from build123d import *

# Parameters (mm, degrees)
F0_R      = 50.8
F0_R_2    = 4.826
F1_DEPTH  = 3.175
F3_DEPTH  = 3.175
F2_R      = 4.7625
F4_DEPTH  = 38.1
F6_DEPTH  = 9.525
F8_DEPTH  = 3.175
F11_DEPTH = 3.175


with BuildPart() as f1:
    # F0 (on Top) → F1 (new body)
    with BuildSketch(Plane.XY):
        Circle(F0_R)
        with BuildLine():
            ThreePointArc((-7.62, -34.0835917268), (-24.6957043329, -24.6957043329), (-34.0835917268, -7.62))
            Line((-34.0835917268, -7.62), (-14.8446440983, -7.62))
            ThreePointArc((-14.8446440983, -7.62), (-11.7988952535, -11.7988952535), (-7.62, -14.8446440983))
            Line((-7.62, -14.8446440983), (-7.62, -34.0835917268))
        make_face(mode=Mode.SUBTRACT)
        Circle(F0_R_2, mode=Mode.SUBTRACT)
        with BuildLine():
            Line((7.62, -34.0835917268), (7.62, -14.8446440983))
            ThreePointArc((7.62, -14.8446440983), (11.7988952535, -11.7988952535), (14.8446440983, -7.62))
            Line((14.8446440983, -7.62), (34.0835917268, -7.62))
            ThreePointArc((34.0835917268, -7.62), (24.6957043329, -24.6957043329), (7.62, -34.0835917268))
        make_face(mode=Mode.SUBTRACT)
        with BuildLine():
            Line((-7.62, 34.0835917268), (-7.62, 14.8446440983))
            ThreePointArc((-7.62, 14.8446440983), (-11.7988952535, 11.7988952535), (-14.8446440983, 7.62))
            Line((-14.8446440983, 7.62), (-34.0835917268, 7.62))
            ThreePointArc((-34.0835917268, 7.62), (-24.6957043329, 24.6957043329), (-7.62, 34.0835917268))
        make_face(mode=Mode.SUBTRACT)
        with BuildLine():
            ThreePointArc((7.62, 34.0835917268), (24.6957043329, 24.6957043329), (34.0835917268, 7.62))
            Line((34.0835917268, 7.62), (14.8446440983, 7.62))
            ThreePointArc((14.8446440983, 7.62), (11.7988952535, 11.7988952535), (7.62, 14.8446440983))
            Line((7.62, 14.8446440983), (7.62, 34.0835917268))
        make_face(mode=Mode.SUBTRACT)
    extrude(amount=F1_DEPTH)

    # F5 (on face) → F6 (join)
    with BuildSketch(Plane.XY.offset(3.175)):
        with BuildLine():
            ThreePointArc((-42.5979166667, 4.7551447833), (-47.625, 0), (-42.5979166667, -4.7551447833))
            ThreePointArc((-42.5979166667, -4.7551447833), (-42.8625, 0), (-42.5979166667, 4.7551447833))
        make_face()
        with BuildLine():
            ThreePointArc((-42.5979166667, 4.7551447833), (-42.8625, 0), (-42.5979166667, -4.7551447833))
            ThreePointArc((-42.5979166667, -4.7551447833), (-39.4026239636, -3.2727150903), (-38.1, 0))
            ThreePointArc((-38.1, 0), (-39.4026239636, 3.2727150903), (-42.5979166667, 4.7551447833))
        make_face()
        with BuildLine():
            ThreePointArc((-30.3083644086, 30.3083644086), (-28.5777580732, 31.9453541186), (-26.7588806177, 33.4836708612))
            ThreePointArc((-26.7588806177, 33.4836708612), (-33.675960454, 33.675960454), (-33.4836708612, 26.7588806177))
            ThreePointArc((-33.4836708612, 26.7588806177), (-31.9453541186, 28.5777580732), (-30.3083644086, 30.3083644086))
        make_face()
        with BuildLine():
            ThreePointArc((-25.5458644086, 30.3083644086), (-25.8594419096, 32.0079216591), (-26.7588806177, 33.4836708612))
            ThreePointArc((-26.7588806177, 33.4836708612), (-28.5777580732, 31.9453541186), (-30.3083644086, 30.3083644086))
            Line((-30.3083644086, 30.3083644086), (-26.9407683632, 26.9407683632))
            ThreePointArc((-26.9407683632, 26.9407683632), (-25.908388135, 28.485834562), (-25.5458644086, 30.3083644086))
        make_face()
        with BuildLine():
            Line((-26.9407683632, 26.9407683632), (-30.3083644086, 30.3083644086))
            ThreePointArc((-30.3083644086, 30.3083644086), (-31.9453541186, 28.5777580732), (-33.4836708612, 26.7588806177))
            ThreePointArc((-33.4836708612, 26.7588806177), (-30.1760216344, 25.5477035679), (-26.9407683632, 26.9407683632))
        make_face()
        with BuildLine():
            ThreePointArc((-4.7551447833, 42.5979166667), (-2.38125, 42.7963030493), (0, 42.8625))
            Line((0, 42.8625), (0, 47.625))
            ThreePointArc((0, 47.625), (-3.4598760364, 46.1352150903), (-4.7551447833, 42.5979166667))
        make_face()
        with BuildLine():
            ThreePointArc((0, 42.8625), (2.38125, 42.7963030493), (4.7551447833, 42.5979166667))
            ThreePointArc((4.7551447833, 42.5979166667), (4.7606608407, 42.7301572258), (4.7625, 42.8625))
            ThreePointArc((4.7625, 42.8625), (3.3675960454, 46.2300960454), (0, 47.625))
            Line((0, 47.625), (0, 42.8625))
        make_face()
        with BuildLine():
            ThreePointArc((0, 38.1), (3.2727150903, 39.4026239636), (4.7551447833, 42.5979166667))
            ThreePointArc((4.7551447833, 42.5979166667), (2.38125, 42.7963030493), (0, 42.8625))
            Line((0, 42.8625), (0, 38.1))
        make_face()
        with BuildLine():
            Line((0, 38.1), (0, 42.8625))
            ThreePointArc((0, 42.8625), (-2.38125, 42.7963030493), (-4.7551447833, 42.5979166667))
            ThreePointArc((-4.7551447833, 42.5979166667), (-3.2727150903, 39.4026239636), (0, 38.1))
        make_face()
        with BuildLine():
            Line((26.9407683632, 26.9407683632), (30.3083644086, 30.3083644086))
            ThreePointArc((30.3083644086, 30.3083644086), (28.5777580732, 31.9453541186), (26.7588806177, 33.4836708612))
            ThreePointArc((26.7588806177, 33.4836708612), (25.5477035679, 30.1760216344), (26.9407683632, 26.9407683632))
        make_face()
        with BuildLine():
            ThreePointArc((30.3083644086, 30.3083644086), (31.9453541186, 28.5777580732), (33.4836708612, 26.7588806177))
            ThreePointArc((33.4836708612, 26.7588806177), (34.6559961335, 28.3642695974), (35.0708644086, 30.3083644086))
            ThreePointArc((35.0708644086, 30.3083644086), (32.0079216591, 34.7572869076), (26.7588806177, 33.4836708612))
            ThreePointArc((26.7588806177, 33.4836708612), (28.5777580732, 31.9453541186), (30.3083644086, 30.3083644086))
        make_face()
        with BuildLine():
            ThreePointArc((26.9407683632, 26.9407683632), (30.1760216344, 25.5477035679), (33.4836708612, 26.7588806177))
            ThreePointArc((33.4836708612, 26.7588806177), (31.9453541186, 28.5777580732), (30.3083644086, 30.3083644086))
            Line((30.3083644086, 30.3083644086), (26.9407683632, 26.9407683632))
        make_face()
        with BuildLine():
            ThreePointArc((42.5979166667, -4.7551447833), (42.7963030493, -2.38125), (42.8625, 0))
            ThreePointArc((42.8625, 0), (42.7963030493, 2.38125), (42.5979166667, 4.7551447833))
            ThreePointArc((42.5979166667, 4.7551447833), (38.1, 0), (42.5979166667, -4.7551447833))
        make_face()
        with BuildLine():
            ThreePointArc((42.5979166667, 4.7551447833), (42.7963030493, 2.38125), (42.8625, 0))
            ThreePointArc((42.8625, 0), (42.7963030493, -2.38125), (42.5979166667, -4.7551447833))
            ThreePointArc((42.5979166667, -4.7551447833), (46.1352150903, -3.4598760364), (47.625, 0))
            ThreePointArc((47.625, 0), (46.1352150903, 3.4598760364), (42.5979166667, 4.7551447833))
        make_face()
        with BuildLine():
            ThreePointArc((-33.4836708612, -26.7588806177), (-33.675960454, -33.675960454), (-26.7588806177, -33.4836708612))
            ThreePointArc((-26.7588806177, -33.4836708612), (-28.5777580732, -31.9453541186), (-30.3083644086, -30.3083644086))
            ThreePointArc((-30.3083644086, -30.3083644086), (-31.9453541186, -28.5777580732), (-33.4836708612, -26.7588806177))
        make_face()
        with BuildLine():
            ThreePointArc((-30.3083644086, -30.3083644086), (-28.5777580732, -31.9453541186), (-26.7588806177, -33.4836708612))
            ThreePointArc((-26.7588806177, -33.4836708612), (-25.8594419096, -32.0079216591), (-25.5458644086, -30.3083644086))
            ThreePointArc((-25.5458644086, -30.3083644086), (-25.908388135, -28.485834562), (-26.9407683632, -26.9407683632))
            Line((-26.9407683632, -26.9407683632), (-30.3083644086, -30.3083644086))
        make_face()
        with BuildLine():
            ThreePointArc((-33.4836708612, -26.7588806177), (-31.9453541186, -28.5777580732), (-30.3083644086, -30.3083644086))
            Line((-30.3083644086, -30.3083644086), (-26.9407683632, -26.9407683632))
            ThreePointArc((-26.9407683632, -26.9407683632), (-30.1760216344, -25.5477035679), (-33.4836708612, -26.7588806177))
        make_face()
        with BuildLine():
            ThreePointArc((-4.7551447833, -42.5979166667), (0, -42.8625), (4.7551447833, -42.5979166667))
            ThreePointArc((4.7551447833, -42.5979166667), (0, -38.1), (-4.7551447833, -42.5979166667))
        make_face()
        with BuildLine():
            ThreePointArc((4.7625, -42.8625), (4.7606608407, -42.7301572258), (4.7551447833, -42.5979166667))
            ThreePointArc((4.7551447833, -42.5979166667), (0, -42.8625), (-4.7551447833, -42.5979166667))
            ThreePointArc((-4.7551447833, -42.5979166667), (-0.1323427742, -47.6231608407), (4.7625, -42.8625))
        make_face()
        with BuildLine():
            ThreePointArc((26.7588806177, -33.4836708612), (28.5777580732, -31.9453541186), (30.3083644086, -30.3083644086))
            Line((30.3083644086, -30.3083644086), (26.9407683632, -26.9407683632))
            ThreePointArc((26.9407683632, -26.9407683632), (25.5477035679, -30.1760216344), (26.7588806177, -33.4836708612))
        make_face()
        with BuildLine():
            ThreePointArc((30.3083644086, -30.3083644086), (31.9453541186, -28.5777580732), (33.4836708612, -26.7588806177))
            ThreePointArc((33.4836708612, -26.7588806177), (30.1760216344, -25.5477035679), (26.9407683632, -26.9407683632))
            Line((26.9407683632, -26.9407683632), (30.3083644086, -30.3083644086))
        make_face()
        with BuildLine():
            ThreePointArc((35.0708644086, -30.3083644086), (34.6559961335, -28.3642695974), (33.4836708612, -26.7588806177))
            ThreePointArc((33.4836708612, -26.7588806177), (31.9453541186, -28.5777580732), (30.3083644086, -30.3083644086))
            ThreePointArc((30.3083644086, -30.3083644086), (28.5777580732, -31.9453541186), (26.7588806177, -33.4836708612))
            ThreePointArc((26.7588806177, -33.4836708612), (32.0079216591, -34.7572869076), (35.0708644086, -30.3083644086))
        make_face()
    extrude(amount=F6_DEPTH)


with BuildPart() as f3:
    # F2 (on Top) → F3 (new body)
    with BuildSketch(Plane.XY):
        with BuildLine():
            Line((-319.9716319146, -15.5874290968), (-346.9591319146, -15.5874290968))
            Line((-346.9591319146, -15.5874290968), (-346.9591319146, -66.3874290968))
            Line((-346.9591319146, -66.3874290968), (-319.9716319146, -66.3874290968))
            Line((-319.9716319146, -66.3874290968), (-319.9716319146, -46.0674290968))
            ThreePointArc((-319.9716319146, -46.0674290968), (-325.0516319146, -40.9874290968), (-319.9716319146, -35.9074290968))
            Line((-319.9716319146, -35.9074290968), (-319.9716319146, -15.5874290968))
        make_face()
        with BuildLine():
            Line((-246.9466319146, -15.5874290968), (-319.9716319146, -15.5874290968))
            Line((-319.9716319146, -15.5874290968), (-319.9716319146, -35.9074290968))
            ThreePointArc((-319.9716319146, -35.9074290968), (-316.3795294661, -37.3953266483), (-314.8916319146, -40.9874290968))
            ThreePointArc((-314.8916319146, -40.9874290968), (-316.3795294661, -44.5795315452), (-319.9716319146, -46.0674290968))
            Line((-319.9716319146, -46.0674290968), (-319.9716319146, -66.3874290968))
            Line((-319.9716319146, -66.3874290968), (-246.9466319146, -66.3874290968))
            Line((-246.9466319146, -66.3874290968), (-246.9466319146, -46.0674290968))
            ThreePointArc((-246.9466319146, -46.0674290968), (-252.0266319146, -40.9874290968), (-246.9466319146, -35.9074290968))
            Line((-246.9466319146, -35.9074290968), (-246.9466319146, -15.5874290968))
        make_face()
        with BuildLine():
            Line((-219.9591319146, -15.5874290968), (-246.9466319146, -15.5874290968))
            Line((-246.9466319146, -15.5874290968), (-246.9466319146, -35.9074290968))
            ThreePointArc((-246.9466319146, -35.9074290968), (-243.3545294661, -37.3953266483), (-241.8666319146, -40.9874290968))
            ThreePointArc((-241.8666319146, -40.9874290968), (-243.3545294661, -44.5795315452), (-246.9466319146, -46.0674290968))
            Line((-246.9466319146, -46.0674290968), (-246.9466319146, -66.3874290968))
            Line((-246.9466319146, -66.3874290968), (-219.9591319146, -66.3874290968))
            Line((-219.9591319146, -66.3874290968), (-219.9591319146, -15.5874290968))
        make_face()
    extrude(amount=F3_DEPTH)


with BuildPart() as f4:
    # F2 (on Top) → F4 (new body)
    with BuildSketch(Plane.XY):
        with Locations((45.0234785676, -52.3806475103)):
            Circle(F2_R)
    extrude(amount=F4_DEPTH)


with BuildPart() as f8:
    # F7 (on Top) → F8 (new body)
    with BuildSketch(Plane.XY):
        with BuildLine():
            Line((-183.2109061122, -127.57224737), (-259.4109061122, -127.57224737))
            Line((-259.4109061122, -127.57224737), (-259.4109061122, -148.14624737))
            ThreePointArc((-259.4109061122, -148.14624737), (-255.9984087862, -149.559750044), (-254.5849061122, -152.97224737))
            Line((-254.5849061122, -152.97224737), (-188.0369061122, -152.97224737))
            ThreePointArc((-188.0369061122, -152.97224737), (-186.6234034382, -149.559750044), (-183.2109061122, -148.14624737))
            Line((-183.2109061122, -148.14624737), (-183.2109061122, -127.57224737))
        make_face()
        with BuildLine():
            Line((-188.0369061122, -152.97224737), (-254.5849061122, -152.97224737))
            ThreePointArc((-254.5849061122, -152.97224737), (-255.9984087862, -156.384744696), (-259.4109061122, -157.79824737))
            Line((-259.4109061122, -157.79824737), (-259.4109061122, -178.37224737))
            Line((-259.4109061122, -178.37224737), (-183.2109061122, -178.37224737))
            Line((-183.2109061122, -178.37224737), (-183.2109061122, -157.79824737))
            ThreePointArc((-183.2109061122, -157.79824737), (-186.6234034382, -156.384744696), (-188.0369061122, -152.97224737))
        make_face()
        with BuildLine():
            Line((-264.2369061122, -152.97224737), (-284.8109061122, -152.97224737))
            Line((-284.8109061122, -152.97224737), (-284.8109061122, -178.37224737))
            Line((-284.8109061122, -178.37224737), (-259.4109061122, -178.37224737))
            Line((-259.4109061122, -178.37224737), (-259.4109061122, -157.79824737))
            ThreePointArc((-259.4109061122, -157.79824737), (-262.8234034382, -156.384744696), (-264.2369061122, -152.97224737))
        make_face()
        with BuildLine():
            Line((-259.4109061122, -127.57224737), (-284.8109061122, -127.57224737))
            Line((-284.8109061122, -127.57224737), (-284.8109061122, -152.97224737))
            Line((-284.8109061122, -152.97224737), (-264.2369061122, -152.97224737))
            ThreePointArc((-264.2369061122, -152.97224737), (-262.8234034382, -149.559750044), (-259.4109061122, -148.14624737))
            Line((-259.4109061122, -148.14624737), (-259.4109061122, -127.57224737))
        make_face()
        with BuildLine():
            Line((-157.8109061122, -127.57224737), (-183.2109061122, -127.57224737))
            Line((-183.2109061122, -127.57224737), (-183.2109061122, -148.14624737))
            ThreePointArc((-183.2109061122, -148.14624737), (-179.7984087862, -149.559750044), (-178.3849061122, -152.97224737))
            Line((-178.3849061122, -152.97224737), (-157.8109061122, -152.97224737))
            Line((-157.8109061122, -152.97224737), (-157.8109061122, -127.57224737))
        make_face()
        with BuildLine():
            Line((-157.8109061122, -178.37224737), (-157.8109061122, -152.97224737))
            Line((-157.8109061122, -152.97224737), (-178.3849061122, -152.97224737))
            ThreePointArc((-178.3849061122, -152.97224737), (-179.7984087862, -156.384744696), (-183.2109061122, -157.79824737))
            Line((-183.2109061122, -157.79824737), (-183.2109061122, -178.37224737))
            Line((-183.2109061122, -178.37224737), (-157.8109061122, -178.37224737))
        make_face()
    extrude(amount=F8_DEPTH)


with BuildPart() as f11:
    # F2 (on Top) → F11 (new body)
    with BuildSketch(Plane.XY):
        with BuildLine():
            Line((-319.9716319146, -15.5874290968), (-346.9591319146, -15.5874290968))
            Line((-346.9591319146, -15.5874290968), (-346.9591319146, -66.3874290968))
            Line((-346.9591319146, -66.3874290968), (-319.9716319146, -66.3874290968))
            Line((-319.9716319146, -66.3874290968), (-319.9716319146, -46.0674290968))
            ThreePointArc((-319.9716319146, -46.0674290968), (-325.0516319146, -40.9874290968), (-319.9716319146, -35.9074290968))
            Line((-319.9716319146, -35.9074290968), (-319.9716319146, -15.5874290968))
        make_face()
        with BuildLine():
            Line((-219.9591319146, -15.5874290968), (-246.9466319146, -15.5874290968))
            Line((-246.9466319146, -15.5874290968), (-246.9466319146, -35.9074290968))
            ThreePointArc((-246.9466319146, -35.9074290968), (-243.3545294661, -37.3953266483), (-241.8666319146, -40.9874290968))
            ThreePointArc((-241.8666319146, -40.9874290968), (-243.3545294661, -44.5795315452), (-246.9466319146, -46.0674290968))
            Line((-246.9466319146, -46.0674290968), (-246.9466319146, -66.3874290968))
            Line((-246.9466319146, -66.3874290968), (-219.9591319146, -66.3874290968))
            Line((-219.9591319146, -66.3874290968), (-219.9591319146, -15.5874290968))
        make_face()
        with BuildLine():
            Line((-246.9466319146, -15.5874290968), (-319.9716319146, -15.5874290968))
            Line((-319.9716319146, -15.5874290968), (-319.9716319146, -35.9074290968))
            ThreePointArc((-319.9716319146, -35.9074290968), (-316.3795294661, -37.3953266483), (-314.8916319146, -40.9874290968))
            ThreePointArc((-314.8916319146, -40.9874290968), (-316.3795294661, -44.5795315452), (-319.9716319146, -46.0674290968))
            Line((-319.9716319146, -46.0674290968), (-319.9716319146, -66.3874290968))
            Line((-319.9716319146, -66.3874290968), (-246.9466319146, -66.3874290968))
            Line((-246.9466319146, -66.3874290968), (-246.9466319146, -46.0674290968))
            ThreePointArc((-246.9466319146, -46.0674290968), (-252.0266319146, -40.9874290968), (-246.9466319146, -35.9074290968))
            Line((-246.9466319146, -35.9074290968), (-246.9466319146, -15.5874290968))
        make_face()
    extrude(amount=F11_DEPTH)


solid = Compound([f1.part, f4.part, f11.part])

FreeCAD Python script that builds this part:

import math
import FreeCAD as App
import Part
import Sketcher

V = App.Vector
Q = App.Units.Quantity

doc = App.newDocument("Part")
body = doc.addObject("PartDesign::Body", "Body")

sketch1 = body.newObject("Sketcher::SketchObject", "Sketch")
sketch1.AttachmentSupport = (doc.getObject("XY_Plane"), [""])
sketch1.MapMode = "FlatFace"
sketch1.addGeometry([
    Part.Circle(V(0, 0, 0), V(0, 0, 1), 50.8),
    Part.LineSegment(V(-7.6, -14.8, 0), V(-7.6, -34.1, 0)),
    Part.ArcOfCircle(Part.Circle(V(0, 0, 0), V(0, 0, 1), 34.9), math.radians(-167), math.radians(-103)),
    Part.LineSegment(V(-34.1, -7.6, 0), V(-14.8, -7.6, 0)),
    Part.ArcOfCircle(Part.Circle(V(0, 0, 0), V(0, 0, 1), 16.7), math.radians(-153), math.radians(-117)),
    Part.ArcOfCircle(Part.Circle(V(0, 0, 0), V(0, 0, 1), 34.9), math.radians(-77), math.radians(-13)),
    Part.LineSegment(V(7.6, -34.1, 0), V(7.6, -14.8, 0)),
    Part.ArcOfCircle(Part.Circle(V(0, 0, 0), V(0, 0, 1), 16.7), math.radians(-63), math.radians(-27)),
    Part.LineSegment(V(14.8, -7.6, 0), V(34.1, -7.6, 0)),
    Part.Circle(V(0, 0, 0), V(0, 0, 1), 4.8),
    Part.ArcOfCircle(Part.Circle(V(0, 0, 0), V(0, 0, 1), 34.9), math.radians(103), math.radians(167)),
    Part.LineSegment(V(-7.6, 34.1, 0), V(-7.6, 14.8, 0)),
    Part.ArcOfCircle(Part.Circle(V(0, 0, 0), V(0, 0, 1), 16.7), math.radians(117), math.radians(153)),
    Part.LineSegment(V(-14.8, 7.6, 0), V(-34.1, 7.6, 0)),
    Part.LineSegment(V(7.6, 14.8, 0), V(7.6, 34.1, 0)),
    Part.ArcOfCircle(Part.Circle(V(0, 0, 0), V(0, 0, 1), 34.9), math.radians(13), math.radians(77)),
    Part.LineSegment(V(34.1, 7.6, 0), V(14.8, 7.6, 0)),
    Part.ArcOfCircle(Part.Circle(V(0, 0, 0), V(0, 0, 1), 16.7), math.radians(27), math.radians(63)),
], False)
sketch1.addConstraint([
    Sketcher.Constraint("Coincident", 1, 2, 2, 2),
    Sketcher.Constraint("Coincident", 2, 1, 3, 1),
    Sketcher.Constraint("Coincident", 3, 2, 4, 1),
    Sketcher.Constraint("Coincident", 4, 2, 1, 1),
    Sketcher.Constraint("Coincident", 5, 1, 6, 1),
    Sketcher.Constraint("Coincident", 6, 2, 7, 1),
    Sketcher.Constraint("Coincident", 7, 2, 8, 1),
    Sketcher.Constraint("Coincident", 8, 2, 5, 2),
    Sketcher.Constraint("Coincident", 10, 1, 11, 1),
    Sketcher.Constraint("Coincident", 11, 2, 12, 1),
    Sketcher.Constraint("Coincident", 12, 2, 13, 1),
    Sketcher.Constraint("Coincident", 13, 2, 10, 2),
    Sketcher.Constraint("Coincident", 14, 2, 15, 2),
    Sketcher.Constraint("Coincident", 15, 1, 16, 1),
    Sketcher.Constraint("Coincident", 16, 2, 17, 1),
    Sketcher.Constraint("Coincident", 17, 2, 14, 1),
    Sketcher.Constraint("Vertical", 1),
    Sketcher.Constraint("Horizontal", 3),
    Sketcher.Constraint("Vertical", 6),
    Sketcher.Constraint("Horizontal", 8),
    Sketcher.Constraint("Vertical", 11),
    Sketcher.Constraint("Horizontal", 13),
    Sketcher.Constraint("Vertical", 14),
    Sketcher.Constraint("Horizontal", 16),
    Sketcher.Constraint("Coincident", 0, 3, -1, 1),
    Sketcher.Constraint("Coincident", 2, 3, -1, 1),
    Sketcher.Constraint("Coincident", 4, 3, -1, 1),
    Sketcher.Constraint("Coincident", 5, 3, -1, 1),
    Sketcher.Constraint("Coincident", 7, 3, -1, 1),
    Sketcher.Constraint("Coincident", 9, 3, -1, 1),
    Sketcher.Constraint("Coincident", 10, 3, -1, 1),
    Sketcher.Constraint("Coincident", 12, 3, -1, 1),
    Sketcher.Constraint("Coincident", 15, 3, -1, 1),
    Sketcher.Constraint("Coincident", 17, 3, -1, 1),
    Sketcher.Constraint("Equal", 2, 5),
    Sketcher.Constraint("Equal", 4, 7),
    Sketcher.Constraint("Equal", 5, 10),
    Sketcher.Constraint("Equal", 7, 12),
    Sketcher.Constraint("Equal", 10, 15),
    Sketcher.Constraint("Equal", 12, 17),
    Sketcher.Constraint("Horizontal", 1, 2, 5, 1),
    Sketcher.Constraint("Horizontal", 3, 2, 7, 2),
    Sketcher.Constraint("Horizontal", 10, 1, 14, 2),
    Sketcher.Constraint("Horizontal", 13, 2, 15, 1),
    Sketcher.Constraint("Vertical", 4, 2, 10, 1),
    Sketcher.Constraint("Vertical", 3, 2, 12, 2),
    Sketcher.Constraint("Equal", 16, 1),
    Sketcher.Constraint("Diameter", 0, Q("4 in")),
    Sketcher.Constraint("Diameter", 9, Q("0.38 in")),
    Sketcher.Constraint("Radius", 2, Q("1.375 in")),
    Sketcher.Constraint("DistanceX", 1, 2, -1, 1, Q("0.3 in")),
    Sketcher.Constraint("Radius", 4, 16.686158),
])
pad1 = body.newObject("PartDesign::Pad", "Pad")
pad1.Profile = sketch1
pad1.Length = Q("0.125 in")

sketch2 = body.newObject("Sketcher::SketchObject", "Sketch001")
sketch2.AttachmentSupport = (doc.getObject("XY_Plane"), [""])
sketch2.MapMode = "FlatFace"
sketch2.AttachmentOffset = App.Placement(V(0, 0, 0.125 * 25.4), App.Rotation())
sketch2.addGeometry([
    Part.ArcOfCircle(Part.Circle(V(-42.86, 0, 0), V(0, 0, 1), 4.76), math.radians(87), math.radians(273)),
    Part.ArcOfCircle(Part.Circle(V(-42.86, 0, 0), V(0, 0, 1), 4.76), math.radians(-87), math.radians(0)),
    Part.ArcOfCircle(Part.Circle(V(-42.86, 0, 0), V(0, 0, 1), 4.76), math.radians(0), math.radians(87)),
    Part.ArcOfCircle(Part.Circle(V(-30.31, 30.31, 0), V(0, 0, 1), 4.76), math.radians(42), math.radians(228)),
    Part.ArcOfCircle(Part.Circle(V(-30.31, 30.31, 0), V(0, 0, 1), 4.76), math.radians(-132), math.radians(-45)),
    Part.ArcOfCircle(Part.Circle(V(-30.31, 30.31, 0), V(0, 0, 1), 4.76), math.radians(-45), math.radians(0)),
    Part.ArcOfCircle(Part.Circle(V(-30.31, 30.31, 0), V(0, 0, 1), 4.76), math.radians(0), math.radians(42)),
    Part.ArcOfCircle(Part.Circle(V(0, 42.86, 0), V(0, 0, 1), 4.76), math.radians(-90), math.radians(-3)),
    Part.ArcOfCircle(Part.Circle(V(0, 42.86, 0), V(0, 0, 1), 4.76), math.radians(-3.18), math.radians(0)),
    Part.ArcOfCircle(Part.Circle(V(0, 42.86, 0), V(0, 0, 1), 4.76), math.radians(0), math.radians(90)),
    Part.ArcOfCircle(Part.Circle(V(0, 42.86, 0), V(0, 0, 1), 4.76), math.radians(90), math.radians(183)),
    Part.ArcOfCircle(Part.Circle(V(0, 42.86, 0), V(0, 0, 1), 4.76), math.radians(-177), math.radians(-90)),
    Part.ArcOfCircle(Part.Circle(V(30.31, 30.31, 0), V(0, 0, 1), 4.76), math.radians(-48), math.radians(0)),
    Part.ArcOfCircle(Part.Circle(V(30.31, 30.31, 0), V(0, 0, 1), 4.76), math.radians(0), math.radians(138)),
    Part.ArcOfCircle(Part.Circle(V(30.31, 30.31, 0), V(0, 0, 1), 4.76), math.radians(138), math.radians(225)),
    Part.ArcOfCircle(Part.Circle(V(30.31, 30.31, 0), V(0, 0, 1), 4.76), math.radians(-135), math.radians(-48)),
    Part.ArcOfCircle(Part.Circle(V(42.86, 0, 0), V(0, 0, 1), 4.76), math.radians(93), math.radians(267)),
    Part.ArcOfCircle(Part.Circle(V(42.86, 0, 0), V(0, 0, 1), 4.76), math.radians(-93), math.radians(0)),
    Part.ArcOfCircle(Part.Circle(V(42.86, 0, 0), V(0, 0, 1), 4.76), math.radians(0), math.radians(93)),
    Part.ArcOfCircle(Part.Circle(V(-30.31, -30.31, 0), V(0, 0, 1), 4.76), math.radians(132), math.radians(318)),
    Part.ArcOfCircle(Part.Circle(V(-30.31, -30.31, 0), V(0, 0, 1), 4.76), math.radians(-42), math.radians(0)),
    Part.ArcOfCircle(Part.Circle(V(-30.31, -30.31, 0), V(0, 0, 1), 4.76), math.radians(0), math.radians(45)),
    Part.ArcOfCircle(Part.Circle(V(-30.31, -30.31, 0), V(0, 0, 1), 4.76), math.radians(45), math.radians(132)),
    Part.ArcOfCircle(Part.Circle(V(0, -42.86, 0), V(0, 0, 1), 4.76), math.radians(3), math.radians(177)),
    Part.ArcOfCircle(Part.Circle(V(0, -42.86, 0), V(0, 0, 1), 4.76), math.radians(177), math.radians(360)),
    Part.ArcOfCircle(Part.Circle(V(0, -42.86, 0), V(0, 0, 1), 4.76), math.radians(0), math.radians(3.18)),
    Part.ArcOfCircle(Part.Circle(V(30.31, -30.31, 0), V(0, 0, 1), 4.76), math.radians(48), math.radians(135)),
    Part.ArcOfCircle(Part.Circle(V(30.31, -30.31, 0), V(0, 0, 1), 4.76), math.radians(135), math.radians(222)),
    Part.ArcOfCircle(Part.Circle(V(30.31, -30.31, 0), V(0, 0, 1), 4.76), math.radians(-138), math.radians(0)),
    Part.ArcOfCircle(Part.Circle(V(30.31, -30.31, 0), V(0, 0, 1), 4.76), math.radians(0), math.radians(48)),
], False)
sketch2.addConstraint([
    Sketcher.Constraint("Tangent", 0, 2, 1, 1),
    Sketcher.Constraint("Tangent", 1, 2, 2, 1),
    Sketcher.Constraint("Tangent", 2, 2, 0, 1),
    Sketcher.Constraint("Tangent", 3, 2, 4, 1),
    Sketcher.Constraint("Tangent", 4, 2, 5, 1),
    Sketcher.Constraint("Tangent", 5, 2, 6, 1),
    Sketcher.Constraint("Tangent", 6, 2, 3, 1),
    Sketcher.Constraint("Tangent", 7, 2, 8, 1),
    Sketcher.Constraint("Tangent", 8, 2, 9, 1),
    Sketcher.Constraint("Tangent", 9, 2, 10, 1),
    Sketcher.Constraint("Tangent", 10, 2, 11, 1),
    Sketcher.Constraint("Tangent", 11, 2, 7, 1),
    Sketcher.Constraint("Tangent", 12, 2, 13, 1),
    Sketcher.Constraint("Tangent", 13, 2, 14, 1),
    Sketcher.Constraint("Tangent", 14, 2, 15, 1),
    Sketcher.Constraint("Tangent", 15, 2, 12, 1),
    Sketcher.Constraint("Tangent", 16, 2, 17, 1),
    Sketcher.Constraint("Tangent", 17, 2, 18, 1),
    Sketcher.Constraint("Tangent", 18, 2, 16, 1),
    Sketcher.Constraint("Tangent", 19, 2, 20, 1),
    Sketcher.Constraint("Tangent", 20, 2, 21, 1),
    Sketcher.Constraint("Tangent", 21, 2, 22, 1),
    Sketcher.Constraint("Tangent", 22, 2, 19, 1),
    Sketcher.Constraint("Tangent", 23, 2, 24, 1),
    Sketcher.Constraint("Tangent", 24, 2, 25, 1),
    Sketcher.Constraint("Tangent", 25, 2, 23, 1),
    Sketcher.Constraint("Tangent", 26, 2, 27, 1),
    Sketcher.Constraint("Tangent", 27, 2, 28, 1),
    Sketcher.Constraint("Tangent", 28, 2, 29, 1),
    Sketcher.Constraint("Tangent", 29, 2, 26, 1),
    Sketcher.Constraint("Coincident", 9, 3, 7, 3),
    Sketcher.Constraint("Equal", 2, 3),
    Sketcher.Constraint("Equal", 3, 4),
    Sketcher.Constraint("Equal", 6, 7),
    Sketcher.Constraint("Equal", 11, 12),
    Sketcher.Constraint("Equal", 12, 13),
    Sketcher.Constraint("Equal", 15, 16),
    Sketcher.Constraint("Equal", 18, 19),
    Sketcher.Constraint("Equal", 19, 20),
    Sketcher.Constraint("Equal", 22, 23),
    Sketcher.Constraint("Equal", 25, 26),
    Sketcher.Constraint("Equal", 26, 27),
    Sketcher.Constraint("Symmetric", 0, 3, 16, 3, -1, 1),
    Sketcher.Constraint("Symmetric", 12, 3, 19, 3, -1, 1),
    Sketcher.Constraint("Symmetric", 7, 3, 23, 3, -1, 1),
    Sketcher.Constraint("Symmetric", 3, 3, 26, 3, -1, 1),
    Sketcher.Constraint("Symmetric", 3, 3, 12, 3, -2),
    Sketcher.Constraint("Symmetric", 7, 2, 10, 2, -2),
    Sketcher.Constraint("Symmetric", 0, 2, 16, 2, -2),
    Sketcher.Constraint("PointOnObject", 1, 2, -1),
    Sketcher.Constraint("PointOnObject", 9, 2, -2),
    Sketcher.Constraint("PointOnObject", 11, 2, -2),
    Sketcher.Constraint("PointOnObject", 17, 2, -1),
    Sketcher.Constraint("Horizontal", 15, 3, 5, 2),
    Sketcher.Constraint("Horizontal", 11, 3, 8, 2),
    Sketcher.Constraint("Horizontal", 5, 2, 12, 2),
    Sketcher.Constraint("Horizontal", 6, 2, 13, 2),
    Sketcher.Constraint("Horizontal", 4, 2, 14, 2),
    Sketcher.Constraint("Horizontal", 3, 2, 15, 2),
    Sketcher.Constraint("Horizontal", 2, 2, 18, 2),
    Sketcher.Constraint("Horizontal", 29, 3, 20, 2),
    Sketcher.Constraint("Horizontal", 25, 3, 24, 2),
    Sketcher.Constraint("Horizontal", 23, 2, 25, 2),
    Sketcher.Constraint("Horizontal", 21, 2, 26, 2),
    Sketcher.Constraint("Horizontal", 19, 2, 27, 2),
    Sketcher.Constraint("Horizontal", 20, 2, 28, 2),
    Sketcher.Constraint("Horizontal", 22, 2, 29, 2),
    Sketcher.Constraint("Vertical", 0, 2, 2, 2),
    Sketcher.Constraint("Vertical", 6, 2, 19, 2),
    Sketcher.Constraint("Vertical", 4, 2, 21, 2),
    Sketcher.Constraint("Vertical", 3, 2, 22, 2),
    Sketcher.Constraint("Vertical", 10, 2, 23, 2),
    Sketcher.Constraint("Radius", 0, Q("0.1875 in")),
    Sketcher.Constraint("DistanceX", 1, 2, -1, 1, Q("1.5 in")),
    Sketcher.Constraint("DistanceY", -1, 1, 11, 2, Q("1.5 in")),
    Sketcher.Constraint("DistanceX", 3, 2, -1, 1, 33.483671),
    Sketcher.Constraint("DistanceY", -1, 1, 3, 2, 26.758881),
    Sketcher.Constraint("DistanceX", 4, 2, -1, 1, 26.940768),
    Sketcher.Constraint("DistanceY", -1, 1, 4, 2, 26.940768),
    Sketcher.Constraint("DistanceX", 6, 2, -1, 1, 26.758881),
    Sketcher.Constraint("DistanceY", 19, 3, 0, 2, 25.55322),
    Sketcher.Constraint("DistanceX", 20, 2, 23, 2, 20.79072),
])
pad2 = body.newObject("PartDesign::Pad", "Pad001")
pad2.Profile = sketch2
pad2.Length = Q("0.375 in")
body2 = doc.addObject("PartDesign::Body", "Body001")

sketch3 = body2.newObject("Sketcher::SketchObject", "Sketch002")
sketch3.AttachmentSupport = (doc.getObject("XY_Plane001"), [""])
sketch3.MapMode = "FlatFace"
sketch3.addGeometry([
    Part.LineSegment(V(-347, -16, 0), V(-347, -66, 0)),
    Part.LineSegment(V(-347, -66, 0), V(-220, -66, 0)),
    Part.LineSegment(V(-220, -66, 0), V(-220, -16, 0)),
    Part.LineSegment(V(-220, -16, 0), V(-347, -16, 0)),
    Part.ArcOfCircle(Part.Circle(V(-247, -41, 0), V(0, 0, 1), 5), math.radians(90), math.radians(270)),
    Part.ArcOfCircle(Part.Circle(V(-247, -41, 0), V(0, 0, 1), 5), math.radians(0), math.radians(90)),
    Part.ArcOfCircle(Part.Circle(V(-247, -41, 0), V(0, 0, 1), 5), math.radians(-90), math.radians(0)),
    Part.ArcOfCircle(Part.Circle(V(-320, -41, 0), V(0, 0, 1), 5), math.radians(90), math.radians(270)),
    Part.ArcOfCircle(Part.Circle(V(-320, -41, 0), V(0, 0, 1), 5), math.radians(0), math.radians(90)),
    Part.ArcOfCircle(Part.Circle(V(-320, -41, 0), V(0, 0, 1), 5), math.radians(-90), math.radians(0)),
], False)
sketch3.addConstraint([
    Sketcher.Constraint("Coincident", 0, 2, 1, 1),
    Sketcher.Constraint("Coincident", 1, 2, 2, 1),
    Sketcher.Constraint("Coincident", 2, 2, 3, 1),
    Sketcher.Constraint("Coincident", 3, 2, 0, 1),
    Sketcher.Constraint("Tangent", 4, 1, 5, 2),
    Sketcher.Constraint("Tangent", 5, 1, 6, 2),
    Sketcher.Constraint("Tangent", 6, 1, 4, 2),
    Sketcher.Constraint("Tangent", 7, 1, 8, 2),
    Sketcher.Constraint("Tangent", 8, 1, 9, 2),
    Sketcher.Constraint("Tangent", 9, 1, 7, 2),
    Sketcher.Constraint("Vertical", 0),
    Sketcher.Constraint("Horizontal", 1),
    Sketcher.Constraint("Vertical", 2),
    Sketcher.Constraint("Horizontal", 3),
    Sketcher.Constraint("Equal", 6, 7),
    Sketcher.Constraint("Horizontal", 6, 3, 7, 3),
    Sketcher.Constraint("Horizontal", 9, 3, 5, 1),
    Sketcher.Constraint("Horizontal", 5, 1, 8, 1),
    Sketcher.Constraint("Vertical", 6, 3, 4, 1),
    Sketcher.Constraint("Vertical", 4, 1, 6, 1),
    Sketcher.Constraint("Vertical", 9, 3, 7, 1),
    Sketcher.Constraint("Vertical", 7, 1, 9, 1),
    Sketcher.Constraint("Radius", 4, Q("0.2 in")),
    Sketcher.Constraint("DistanceX", 1, 1, 1, 2, Q("5 in")),
    Sketcher.Constraint("DistanceY", 0, 2, 0, 1, Q("2 in")),
    Sketcher.Constraint("DistanceY", 0, 2, 7, 3, Q("1 in")),
    Sketcher.Constraint("DistanceX", 7, 3, 4, 3, Q("2.875 in")),
    Sketcher.Constraint("DistanceX", 0, 2, 7, 3, Q("1.0625 in")),
    Sketcher.Constraint("DistanceX", 4, 3, -1, 1, 246.946632),
    Sketcher.Constraint("DistanceY", 4, 3, -1, 1, 40.987429),
])
pad3 = body2.newObject("PartDesign::Pad", "Pad002")
pad3.Profile = sketch3
pad3.Length = Q("0.125 in")
body3 = doc.addObject("PartDesign::Body", "Body002")

sketch4 = body3.newObject("Sketcher::SketchObject", "Sketch003")
sketch4.AttachmentSupport = (doc.getObject("XY_Plane002"), [""])
sketch4.MapMode = "FlatFace"
sketch4.addGeometry(Part.Circle(V(45, -52.4, 0), V(0, 0, 1), 4.8), False)
sketch4.addConstraint([
    Sketcher.Constraint("Diameter", 0, Q("0.375 in")),
    Sketcher.Constraint("DistanceX", -1, 1, 0, 3, 45.023479),
    Sketcher.Constraint("DistanceY", 0, 3, -1, 1, 52.380648),
])
pad4 = body3.newObject("PartDesign::Pad", "Pad003")
pad4.Profile = sketch4
pad4.Length = Q("1.5 in")
body4 = doc.addObject("PartDesign::Body", "Body003")

sketch5 = body4.newObject("Sketcher::SketchObject", "Sketch004")
sketch5.AttachmentSupport = (doc.getObject("XY_Plane003"), [""])
sketch5.MapMode = "FlatFace"
sketch5.addGeometry([
    Part.LineSegment(V(-284.8, -127.6, 0), V(-284.8, -178.4, 0)),
    Part.LineSegment(V(-284.8, -178.4, 0), V(-157.8, -178.4, 0)),
    Part.LineSegment(V(-157.8, -178.4, 0), V(-157.8, -127.6, 0)),
    Part.LineSegment(V(-157.8, -127.6, 0), V(-284.8, -127.6, 0)),
    Part.ArcOfCircle(Part.Circle(V(-183.2, -153, 0), V(0, 0, 1), 4.8), math.radians(180), math.radians(270)),
    Part.ArcOfCircle(Part.Circle(V(-183.2, -153, 0), V(0, 0, 1), 4.8), math.radians(90), math.radians(180)),
    Part.ArcOfCircle(Part.Circle(V(-183.2, -153, 0), V(0, 0, 1), 4.8), math.radians(0), math.radians(90)),
    Part.ArcOfCircle(Part.Circle(V(-183.2, -153, 0), V(0, 0, 1), 4.8), math.radians(-90), math.radians(0)),
    Part.ArcOfCircle(Part.Circle(V(-259.4, -153, 0), V(0, 0, 1), 4.8), math.radians(0), math.radians(90)),
    Part.ArcOfCircle(Part.Circle(V(-259.4, -153, 0), V(0, 0, 1), 4.8), math.radians(-90), math.radians(0)),
    Part.ArcOfCircle(Part.Circle(V(-259.4, -153, 0), V(0, 0, 1), 4.8), math.radians(180), math.radians(270)),
    Part.ArcOfCircle(Part.Circle(V(-259.4, -153, 0), V(0, 0, 1), 4.8), math.radians(90), math.radians(180)),
], False)
sketch5.addConstraint([
    Sketcher.Constraint("Coincident", 0, 2, 1, 1),
    Sketcher.Constraint("Coincident", 1, 2, 2, 1),
    Sketcher.Constraint("Coincident", 2, 2, 3, 1),
    Sketcher.Constraint("Coincident", 3, 2, 0, 1),
    Sketcher.Constraint("Tangent", 4, 1, 5, 2),
    Sketcher.Constraint("Tangent", 5, 1, 6, 2),
    Sketcher.Constraint("Tangent", 6, 1, 7, 2),
    Sketcher.Constraint("Tangent", 7, 1, 4, 2),
    Sketcher.Constraint("Tangent", 8, 1, 9, 2),
    Sketcher.Constraint("Tangent", 9, 1, 10, 2),
    Sketcher.Constraint("Tangent", 10, 1, 11, 2),
    Sketcher.Constraint("Tangent", 11, 1, 8, 2),
    Sketcher.Constraint("Vertical", 0),
    Sketcher.Constraint("Horizontal", 1),
    Sketcher.Constraint("Vertical", 2),
    Sketcher.Constraint("Horizontal", 3),
    Sketcher.Constraint("Equal", 4, 5),
    Sketcher.Constraint("Equal", 7, 8),
    Sketcher.Constraint("Equal", 8, 9),
    Sketcher.Constraint("Horizontal", 7, 3, 8, 3),
    Sketcher.Constraint("Horizontal", 11, 3, 4, 1),
    Sketcher.Constraint("Horizontal", 4, 1, 6, 1),
    Sketcher.Constraint("Horizontal", 6, 1, 8, 1),
    Sketcher.Constraint("Horizontal", 8, 1, 10, 1),
    Sketcher.Constraint("Vertical", 7, 3, 5, 1),
    Sketcher.Constraint("Vertical", 5, 1, 7, 1),
    Sketcher.Constraint("Vertical", 11, 3, 9, 1),
    Sketcher.Constraint("Vertical", 9, 1, 11, 1),
    Sketcher.Constraint("DistanceX", 1, 1, 1, 2, Q("5 in")),
    Sketcher.Constraint("DistanceY", 0, 2, 0, 1, Q("2 in")),
    Sketcher.Constraint("Radius", 4, Q("0.19 in")),
    Sketcher.Constraint("DistanceX", 8, 3, 4, 3, Q("3 in")),
    Sketcher.Constraint("DistanceX", 0, 2, 8, 3, Q("1 in")),
    Sketcher.Constraint("DistanceY", 0, 2, 8, 3, Q("1 in")),
    Sketcher.Constraint("DistanceX", 4, 3, -1, 1, 183.210906),
    Sketcher.Constraint("DistanceY", 4, 3, -1, 1, 152.972247),
])
pad5 = body4.newObject("PartDesign::Pad", "Pad004")
pad5.Profile = sketch5
pad5.Length = Q("0.125 in")
body5 = doc.addObject("PartDesign::Body", "Body004")

sketch6 = body5.newObject("Sketcher::SketchObject", "Sketch005")
sketch6.AttachmentSupport = (doc.getObject("XY_Plane004"), [""])
sketch6.MapMode = "FlatFace"
sketch6.addGeometry([
    Part.LineSegment(V(-347, -16, 0), V(-347, -66, 0)),
    Part.LineSegment(V(-347, -66, 0), V(-220, -66, 0)),
    Part.LineSegment(V(-220, -66, 0), V(-220, -16, 0)),
    Part.LineSegment(V(-220, -16, 0), V(-347, -16, 0)),
    Part.ArcOfCircle(Part.Circle(V(-320, -41, 0), V(0, 0, 1), 5), math.radians(90), math.radians(270)),
    Part.ArcOfCircle(Part.Circle(V(-320, -41, 0), V(0, 0, 1), 5), math.radians(0), math.radians(90)),
    Part.ArcOfCircle(Part.Circle(V(-320, -41, 0), V(0, 0, 1), 5), math.radians(-90), math.radians(0)),
    Part.ArcOfCircle(Part.Circle(V(-247, -41, 0), V(0, 0, 1), 5), math.radians(90), math.radians(270)),
    Part.ArcOfCircle(Part.Circle(V(-247, -41, 0), V(0, 0, 1), 5), math.radians(0), math.radians(90)),
    Part.ArcOfCircle(Part.Circle(V(-247, -41, 0), V(0, 0, 1), 5), math.radians(-90), math.radians(0)),
], False)
sketch6.addConstraint([
    Sketcher.Constraint("Coincident", 0, 2, 1, 1),
    Sketcher.Constraint("Coincident", 1, 2, 2, 1),
    Sketcher.Constraint("Coincident", 2, 2, 3, 1),
    Sketcher.Constraint("Coincident", 3, 2, 0, 1),
    Sketcher.Constraint("Tangent", 4, 1, 5, 2),
    Sketcher.Constraint("Tangent", 5, 1, 6, 2),
    Sketcher.Constraint("Tangent", 6, 1, 4, 2),
    Sketcher.Constraint("Tangent", 7, 1, 8, 2),
    Sketcher.Constraint("Tangent", 8, 1, 9, 2),
    Sketcher.Constraint("Tangent", 9, 1, 7, 2),
    Sketcher.Constraint("Vertical", 0),
    Sketcher.Constraint("Horizontal", 1),
    Sketcher.Constraint("Vertical", 2),
    Sketcher.Constraint("Horizontal", 3),
    Sketcher.Constraint("Equal", 6, 7),
    Sketcher.Constraint("Horizontal", 6, 3, 7, 3),
    Sketcher.Constraint("Horizontal", 9, 3, 5, 1),
    Sketcher.Constraint("Horizontal", 5, 1, 8, 1),
    Sketcher.Constraint("Vertical", 6, 3, 4, 1),
    Sketcher.Constraint("Vertical", 4, 1, 6, 1),
    Sketcher.Constraint("Vertical", 9, 3, 7, 1),
    Sketcher.Constraint("Vertical", 7, 1, 9, 1),
    Sketcher.Constraint("Radius", 4, Q("0.2 in")),
    Sketcher.Constraint("DistanceX", 1, 1, 1, 2, Q("5 in")),
    Sketcher.Constraint("DistanceY", 0, 2, 0, 1, Q("2 in")),
    Sketcher.Constraint("DistanceY", 0, 2, 4, 3, Q("1 in")),
    Sketcher.Constraint("DistanceX", 5, 3, 7, 3, Q("2.875 in")),
    Sketcher.Constraint("DistanceX", 0, 2, 4, 3, Q("1.0625 in")),
    Sketcher.Constraint("DistanceX", 4, 3, -1, 1, 319.971632),
    Sketcher.Constraint("DistanceY", 4, 3, -1, 1, 40.987429),
])
pad6 = body5.newObject("PartDesign::Pad", "Pad005")
pad6.Profile = sketch6
pad6.Length = Q("0.125 in")
body2.Visibility = False
body4.Visibility = False

doc.recompute()
